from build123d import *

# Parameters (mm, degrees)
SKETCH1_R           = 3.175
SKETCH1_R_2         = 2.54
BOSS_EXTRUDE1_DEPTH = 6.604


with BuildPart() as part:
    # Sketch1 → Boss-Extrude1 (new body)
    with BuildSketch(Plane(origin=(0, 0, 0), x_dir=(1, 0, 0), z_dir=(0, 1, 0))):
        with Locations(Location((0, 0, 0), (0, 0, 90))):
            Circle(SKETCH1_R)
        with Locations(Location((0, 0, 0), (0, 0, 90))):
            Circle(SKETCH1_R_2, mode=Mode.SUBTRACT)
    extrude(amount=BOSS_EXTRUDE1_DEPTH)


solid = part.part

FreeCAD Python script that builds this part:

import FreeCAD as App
import Part
import Sketcher
Q = App.Units.Quantity

doc = App.newDocument("Part")
body = doc.addObject("PartDesign::Body", "Body")

sketch1 = doc.addObject("Sketcher::SketchObject", "Sketch")
body.addObject(sketch1)
sketch1.AttachmentSupport = (doc.XZ_Plane, [""])
sketch1.MapMode = "FlatFace"
sketch1.addGeometry([
    Part.Circle(App.Vector(0, 0, 0), App.Vector(0, 0, 1), 3.2),
    Part.Circle(App.Vector(0, 0, 0), App.Vector(0, 0, 1), 2.5),
], False)
sketch1.addConstraint([
    Sketcher.Constraint("Coincident", 0, 3, -1, 1),
    Sketcher.Constraint("Coincident", 1, 3, -1, 1),
    Sketcher.Constraint("Diameter", 1, Q("0.2 in")),
    Sketcher.Constraint("Diameter", 0, Q("0.25 in")),
])
pad1 = doc.addObject("PartDesign::Pad", "Pad")
body.addObject(pad1)
pad1.Profile = sketch1
pad1.Length = Q("0.26 in")
pad1.Reversed = True

doc.recompute()
